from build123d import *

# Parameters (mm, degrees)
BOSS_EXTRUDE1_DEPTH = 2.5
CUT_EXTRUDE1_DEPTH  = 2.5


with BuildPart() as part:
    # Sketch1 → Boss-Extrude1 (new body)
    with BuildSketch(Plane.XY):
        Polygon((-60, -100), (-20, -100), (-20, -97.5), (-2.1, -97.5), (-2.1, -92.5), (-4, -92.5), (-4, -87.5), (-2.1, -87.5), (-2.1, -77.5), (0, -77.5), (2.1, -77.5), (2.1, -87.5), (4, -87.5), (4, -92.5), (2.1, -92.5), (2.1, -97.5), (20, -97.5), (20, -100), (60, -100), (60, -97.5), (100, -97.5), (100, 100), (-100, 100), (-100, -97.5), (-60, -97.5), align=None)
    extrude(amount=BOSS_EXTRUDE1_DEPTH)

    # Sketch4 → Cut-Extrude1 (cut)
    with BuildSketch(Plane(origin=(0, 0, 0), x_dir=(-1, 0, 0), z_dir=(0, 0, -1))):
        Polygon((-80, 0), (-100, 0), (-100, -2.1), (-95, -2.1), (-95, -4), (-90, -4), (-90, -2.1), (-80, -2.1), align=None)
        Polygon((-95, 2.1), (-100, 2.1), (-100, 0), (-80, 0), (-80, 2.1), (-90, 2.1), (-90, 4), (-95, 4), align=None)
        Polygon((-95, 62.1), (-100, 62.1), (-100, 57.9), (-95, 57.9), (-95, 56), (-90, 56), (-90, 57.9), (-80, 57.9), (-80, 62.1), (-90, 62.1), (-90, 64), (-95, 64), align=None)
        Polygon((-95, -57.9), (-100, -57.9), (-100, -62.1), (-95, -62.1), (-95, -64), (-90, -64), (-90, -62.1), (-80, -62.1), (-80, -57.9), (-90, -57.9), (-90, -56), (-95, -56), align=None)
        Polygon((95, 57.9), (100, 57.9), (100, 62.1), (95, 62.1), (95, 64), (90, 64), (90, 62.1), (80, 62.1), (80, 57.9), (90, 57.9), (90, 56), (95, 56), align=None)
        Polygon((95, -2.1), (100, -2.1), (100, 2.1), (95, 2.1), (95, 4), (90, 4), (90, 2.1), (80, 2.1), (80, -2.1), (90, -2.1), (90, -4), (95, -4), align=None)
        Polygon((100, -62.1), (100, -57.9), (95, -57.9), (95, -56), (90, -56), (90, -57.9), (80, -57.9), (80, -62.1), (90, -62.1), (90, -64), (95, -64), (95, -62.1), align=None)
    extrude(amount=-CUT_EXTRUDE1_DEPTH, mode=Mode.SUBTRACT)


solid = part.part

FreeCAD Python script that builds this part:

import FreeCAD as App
import Part
import Sketcher

V = App.Vector
Q = App.Units.Quantity

doc = App.newDocument("Part")
body = doc.addObject("PartDesign::Body", "Body")

# Sketch on XY plane
sketch1 = doc.addObject("Sketcher::SketchObject", "Sketch")
body.addObject(sketch1)
sketch1.AttachmentSupport = (doc.XY_Plane, [""])
sketch1.MapMode = "FlatFace"
sketch1.addGeometry([
    Part.LineSegment(V(-60, -100, 0), V(-20, -100, 0)),  # 0
    Part.LineSegment(V(-20, -100, 0), V(-20, -97.5, 0)),  # 1
    Part.LineSegment(V(-20, -97.5, 0), V(-2.1, -97.5, 0)),  # 2
    Part.LineSegment(V(-2.1, -97.5, 0), V(-2.1, -92.5, 0)),  # 3
    Part.LineSegment(V(-2.1, -92.5, 0), V(-4, -92.5, 0)),  # 4
    Part.LineSegment(V(-4, -92.5, 0), V(-4, -87.5, 0)),  # 5
    Part.LineSegment(V(-4, -87.5, 0), V(-2.1, -87.5, 0)),  # 6
    Part.LineSegment(V(-2.1, -87.5, 0), V(-2.1, -77.5, 0)),  # 7
    Part.LineSegment(V(-2.1, -77.5, 0), V(2.1, -77.5, 0)),  # 8
    Part.LineSegment(V(2.1, -77.5, 0), V(2.1, -87.5, 0)),  # 9
    Part.LineSegment(V(2.1, -87.5, 0), V(4, -87.5, 0)),  # 10
    Part.LineSegment(V(4, -87.5, 0), V(4, -92.5, 0)),  # 11
    Part.LineSegment(V(4, -92.5, 0), V(2.1, -92.5, 0)),  # 12
    Part.LineSegment(V(2.1, -92.5, 0), V(2.1, -97.5, 0)),  # 13
    Part.LineSegment(V(2.1, -97.5, 0), V(20, -97.5, 0)),  # 14
    Part.LineSegment(V(20, -97.5, 0), V(20, -100, 0)),  # 15
    Part.LineSegment(V(20, -100, 0), V(60, -100, 0)),  # 16
    Part.LineSegment(V(60, -100, 0), V(60, -97.5, 0)),  # 17
    Part.LineSegment(V(60, -97.5, 0), V(100, -97.5, 0)),  # 18
    Part.LineSegment(V(100, -97.5, 0), V(100, 100, 0)),  # 19
    Part.LineSegment(V(100, 100, 0), V(-100, 100, 0)),  # 20
    Part.LineSegment(V(-100, 100, 0), V(-100, -97.5, 0)),  # 21
    Part.LineSegment(V(-100, -97.5, 0), V(-60, -97.5, 0)),  # 22
    Part.LineSegment(V(-60, -97.5, 0), V(-60, -100, 0)),  # 23
], False)
sketch1.addConstraint([
    Sketcher.Constraint("Coincident", 0, 2, 1, 1),
    Sketcher.Constraint("Coincident", 1, 2, 2, 1),
    Sketcher.Constraint("Coincident", 2, 2, 3, 1),
    Sketcher.Constraint("Coincident", 3, 2, 4, 1),
    Sketcher.Constraint("Coincident", 4, 2, 5, 1),
    Sketcher.Constraint("Coincident", 5, 2, 6, 1),
    Sketcher.Constraint("Coincident", 6, 2, 7, 1),
    Sketcher.Constraint("Coincident", 7, 2, 8, 1),
    Sketcher.Constraint("Coincident", 8, 2, 9, 1),
    Sketcher.Constraint("Coincident", 9, 2, 10, 1),
    Sketcher.Constraint("Coincident", 10, 2, 11, 1),
    Sketcher.Constraint("Coincident", 11, 2, 12, 1),
    Sketcher.Constraint("Coincident", 12, 2, 13, 1),
    Sketcher.Constraint("Coincident", 13, 2, 14, 1),
    Sketcher.Constraint("Coincident", 14, 2, 15, 1),
    Sketcher.Constraint("Coincident", 15, 2, 16, 1),
    Sketcher.Constraint("Coincident", 16, 2, 17, 1),
    Sketcher.Constraint("Coincident", 17, 2, 18, 1),
    Sketcher.Constraint("Coincident", 18, 2, 19, 1),
    Sketcher.Constraint("Coincident", 19, 2, 20, 1),
    Sketcher.Constraint("Coincident", 20, 2, 21, 1),
    Sketcher.Constraint("Coincident", 21, 2, 22, 1),
    Sketcher.Constraint("Coincident", 22, 2, 23, 1),
    Sketcher.Constraint("Coincident", 23, 2, 0, 1),
    Sketcher.Constraint("Horizontal", 0),
    Sketcher.Constraint("Vertical", 1),
    Sketcher.Constraint("Horizontal", 2),
    Sketcher.Constraint("Vertical", 3),
    Sketcher.Constraint("Horizontal", 4),
    Sketcher.Constraint("Vertical", 5),
    Sketcher.Constraint("Horizontal", 6),
    Sketcher.Constraint("Vertical", 7),
    Sketcher.Constraint("Horizontal", 8),
    Sketcher.Constraint("Vertical", 9),
    Sketcher.Constraint("Horizontal", 10),
    Sketcher.Constraint("Vertical", 11),
    Sketcher.Constraint("Horizontal", 12),
    Sketcher.Constraint("Vertical", 13),
    Sketcher.Constraint("Horizontal", 14),
    Sketcher.Constraint("Vertical", 15),
    Sketcher.Constraint("Horizontal", 16),
    Sketcher.Constraint("Vertical", 17),
    Sketcher.Constraint("Horizontal", 18),
    Sketcher.Constraint("Vertical", 19),
    Sketcher.Constraint("Horizontal", 20),
    Sketcher.Constraint("Vertical", 21),
    Sketcher.Constraint("Horizontal", 22),
    Sketcher.Constraint("Vertical", 23),
    Sketcher.Constraint("Symmetric", 6, 2, 9, 2, -2),
    Sketcher.Constraint("Symmetric", 4, 2, 11, 2, -2),
    Sketcher.Constraint("Symmetric", 2, 2, 13, 2, -2),
    Sketcher.Constraint("Symmetric", 0, 2, 15, 2, -2),
    Sketcher.Constraint("Symmetric", 18, 2, 21, 2, -2),
    Sketcher.Constraint("Horizontal", 14, 2, 17, 2),
    Sketcher.Constraint("Vertical", 3, 2, 6, 2),
    Sketcher.Constraint("Equal", 0, 16),
    Sketcher.Constraint("Equal", 16, 18),
    Sketcher.Constraint("Equal", 3, 5),
    Sketcher.Constraint("DistanceX", 0, 1, 0, 2, Q("40 mm")),
    Sketcher.Constraint("DistanceX", 20, 2, 20, 1, Q("200 mm")),
    Sketcher.Constraint("DistanceY", 3, 1, 3, 2, Q("5 mm")),
    Sketcher.Constraint("DistanceY", 7, 1, 7, 2, Q("10 mm")),
    Sketcher.Constraint("DistanceX", 2, 1, 2, 2, Q("17.9 mm")),
    Sketcher.Constraint("DistanceX", 4, 2, 4, 1, Q("1.9 mm")),
    Sketcher.Constraint("DistanceY", 1, 1, 1, 2, Q("2.5 mm")),
    Sketcher.Constraint("DistanceY", 19, 1, 19, 2, Q("197.5 mm")),
    Sketcher.Constraint("DistanceY", 0, 2, -1, 1, Q("100 mm")),
])
pad1 = doc.addObject("PartDesign::Pad", "Pad")
body.addObject(pad1)
pad1.Profile = sketch1
pad1.Length = 2.5

# Sketch on XY plane
sketch2 = doc.addObject("Sketcher::SketchObject", "Sketch001")
body.addObject(sketch2)
sketch2.AttachmentSupport = (doc.XY_Plane, [""])
sketch2.MapMode = "FlatFace"
sketch2.addGeometry([
    Part.LineSegment(V(100, -2.1, 0), V(95, -2.1, 0)),  # 0
    Part.LineSegment(V(95, -2.1, 0), V(95, -4, 0)),  # 1
    Part.LineSegment(V(95, -4, 0), V(90, -4, 0)),  # 2
    Part.LineSegment(V(90, -4, 0), V(90, -2.1, 0)),  # 3
    Part.LineSegment(V(90, -2.1, 0), V(80, -2.1, 0)),  # 4
    Part.LineSegment(V(80, -2.1, 0), V(80, 2.1, 0)),  # 5
    Part.LineSegment(V(80, 2.1, 0), V(90, 2.1, 0)),  # 6
    Part.LineSegment(V(90, 2.1, 0), V(90, 4, 0)),  # 7
    Part.LineSegment(V(90, 4, 0), V(95, 4, 0)),  # 8
    Part.LineSegment(V(95, 4, 0), V(95, 2.1, 0)),  # 9
    Part.LineSegment(V(95, 2.1, 0), V(100, 2.1, 0)),  # 10
    Part.LineSegment(V(100, 2.1, 0), V(100, -2.1, 0)),  # 11
    Part.LineSegment(V(95, 62.1, 0), V(100, 62.1, 0)),  # 12
    Part.LineSegment(V(100, 62.1, 0), V(100, 57.9, 0)),  # 13
    Part.LineSegment(V(100, 57.9, 0), V(95, 57.9, 0)),  # 14
    Part.LineSegment(V(95, 57.9, 0), V(95, 56, 0)),  # 15
    Part.LineSegment(V(95, 56, 0), V(90, 56, 0)),  # 16
    Part.LineSegment(V(90, 56, 0), V(90, 57.9, 0)),  # 17
    Part.LineSegment(V(90, 57.9, 0), V(80, 57.9, 0)),  # 18
    Part.LineSegment(V(80, 57.9, 0), V(80, 62.1, 0)),  # 19
    Part.LineSegment(V(80, 62.1, 0), V(90, 62.1, 0)),  # 20
    Part.LineSegment(V(90, 62.1, 0), V(90, 64, 0)),  # 21
    Part.LineSegment(V(90, 64, 0), V(95, 64, 0)),  # 22
    Part.LineSegment(V(95, 64, 0), V(95, 62.1, 0)),  # 23
    Part.LineSegment(V(95, -57.9, 0), V(100, -57.9, 0)),  # 24
    Part.LineSegment(V(100, -57.9, 0), V(100, -62.1, 0)),  # 25
    Part.LineSegment(V(100, -62.1, 0), V(95, -62.1, 0)),  # 26
    Part.LineSegment(V(95, -62.1, 0), V(95, -64, 0)),  # 27
    Part.LineSegment(V(95, -64, 0), V(90, -64, 0)),  # 28
    Part.LineSegment(V(90, -64, 0), V(90, -62.1, 0)),  # 29
    Part.LineSegment(V(90, -62.1, 0), V(80, -62.1, 0)),  # 30
    Part.LineSegment(V(80, -62.1, 0), V(80, -57.9, 0)),  # 31
    Part.LineSegment(V(80, -57.9, 0), V(90, -57.9, 0)),  # 32
    Part.LineSegment(V(90, -57.9, 0), V(90, -56, 0)),  # 33
    Part.LineSegment(V(90, -56, 0), V(95, -56, 0)),  # 34
    Part.LineSegment(V(95, -56, 0), V(95, -57.9, 0)),  # 35
    Part.LineSegment(V(-95, 57.9, 0), V(-100, 57.9, 0)),  # 36
    Part.LineSegment(V(-100, 57.9, 0), V(-100, 62.1, 0)),  # 37
    Part.LineSegment(V(-100, 62.1, 0), V(-95, 62.1, 0)),  # 38
    Part.LineSegment(V(-95, 62.1, 0), V(-95, 64, 0)),  # 39
    Part.LineSegment(V(-95, 64, 0), V(-90, 64, 0)),  # 40
    Part.LineSegment(V(-90, 64, 0), V(-90, 62.1, 0)),  # 41
    Part.LineSegment(V(-90, 62.1, 0), V(-80, 62.1, 0)),  # 42
    Part.LineSegment(V(-80, 62.1, 0), V(-80, 57.9, 0)),  # 43
    Part.LineSegment(V(-80, 57.9, 0), V(-90, 57.9, 0)),  # 44
    Part.LineSegment(V(-90, 57.9, 0), V(-90, 56, 0)),  # 45
    Part.LineSegment(V(-90, 56, 0), V(-95, 56, 0)),  # 46
    Part.LineSegment(V(-95, 56, 0), V(-95, 57.9, 0)),  # 47
    Part.LineSegment(V(-95, -2.1, 0), V(-100, -2.1, 0)),  # 48
    Part.LineSegment(V(-100, -2.1, 0), V(-100, 2.1, 0)),  # 49
    Part.LineSegment(V(-100, 2.1, 0), V(-95, 2.1, 0)),  # 50
    Part.LineSegment(V(-95, 2.1, 0), V(-95, 4, 0)),  # 51
    Part.LineSegment(V(-95, 4, 0), V(-90, 4, 0)),  # 52
    Part.LineSegment(V(-90, 4, 0), V(-90, 2.1, 0)),  # 53
    Part.LineSegment(V(-90, 2.1, 0), V(-80, 2.1, 0)),  # 54
    Part.LineSegment(V(-80, 2.1, 0), V(-80, -2.1, 0)),  # 55
    Part.LineSegment(V(-80, -2.1, 0), V(-90, -2.1, 0)),  # 56
    Part.LineSegment(V(-90, -2.1, 0), V(-90, -4, 0)),  # 57
    Part.LineSegment(V(-90, -4, 0), V(-95, -4, 0)),  # 58
    Part.LineSegment(V(-95, -4, 0), V(-95, -2.1, 0)),  # 59
    Part.LineSegment(V(-100, -62.1, 0), V(-100, -57.9, 0)),  # 60
    Part.LineSegment(V(-100, -57.9, 0), V(-95, -57.9, 0)),  # 61
    Part.LineSegment(V(-95, -57.9, 0), V(-95, -56, 0)),  # 62
    Part.LineSegment(V(-95, -56, 0), V(-90, -56, 0)),  # 63
    Part.LineSegment(V(-90, -56, 0), V(-90, -57.9, 0)),  # 64
    Part.LineSegment(V(-90, -57.9, 0), V(-80, -57.9, 0)),  # 65
    Part.LineSegment(V(-80, -57.9, 0), V(-80, -62.1, 0)),  # 66
    Part.LineSegment(V(-80, -62.1, 0), V(-90, -62.1, 0)),  # 67
    Part.LineSegment(V(-90, -62.1, 0), V(-90, -64, 0)),  # 68
    Part.LineSegment(V(-90, -64, 0), V(-95, -64, 0)),  # 69
    Part.LineSegment(V(-95, -64, 0), V(-95, -62.1, 0)),  # 70
    Part.LineSegment(V(-95, -62.1, 0), V(-100, -62.1, 0)),  # 71
], False)
sketch2.addConstraint([
    Sketcher.Constraint("Coincident", 0, 2, 1, 1),
    Sketcher.Constraint("Coincident", 1, 2, 2, 1),
    Sketcher.Constraint("Coincident", 2, 2, 3, 1),
    Sketcher.Constraint("Coincident", 3, 2, 4, 1),
    Sketcher.Constraint("Coincident", 4, 2, 5, 1),
    Sketcher.Constraint("Coincident", 5, 2, 6, 1),
    Sketcher.Constraint("Coincident", 6, 2, 7, 1),
    Sketcher.Constraint("Coincident", 7, 2, 8, 1),
    Sketcher.Constraint("Coincident", 8, 2, 9, 1),
    Sketcher.Constraint("Coincident", 9, 2, 10, 1),
    Sketcher.Constraint("Coincident", 10, 2, 11, 1),
    Sketcher.Constraint("Coincident", 11, 2, 0, 1),
    Sketcher.Constraint("Coincident", 12, 2, 13, 1),
    Sketcher.Constraint("Coincident", 13, 2, 14, 1),
    Sketcher.Constraint("Coincident", 14, 2, 15, 1),
    Sketcher.Constraint("Coincident", 15, 2, 16, 1),
    Sketcher.Constraint("Coincident", 16, 2, 17, 1),
    Sketcher.Constraint("Coincident", 17, 2, 18, 1),
    Sketcher.Constraint("Coincident", 18, 2, 19, 1),
    Sketcher.Constraint("Coincident", 19, 2, 20, 1),
    Sketcher.Constraint("Coincident", 20, 2, 21, 1),
    Sketcher.Constraint("Coincident", 21, 2, 22, 1),
    Sketcher.Constraint("Coincident", 22, 2, 23, 1),
    Sketcher.Constraint("Coincident", 23, 2, 12, 1),
    Sketcher.Constraint("Coincident", 24, 2, 25, 1),
    Sketcher.Constraint("Coincident", 25, 2, 26, 1),
    Sketcher.Constraint("Coincident", 26, 2, 27, 1),
    Sketcher.Constraint("Coincident", 27, 2, 28, 1),
    Sketcher.Constraint("Coincident", 28, 2, 29, 1),
    Sketcher.Constraint("Coincident", 29, 2, 30, 1),
    Sketcher.Constraint("Coincident", 30, 2, 31, 1),
    Sketcher.Constraint("Coincident", 31, 2, 32, 1),
    Sketcher.Constraint("Coincident", 32, 2, 33, 1),
    Sketcher.Constraint("Coincident", 33, 2, 34, 1),
    Sketcher.Constraint("Coincident", 34, 2, 35, 1),
    Sketcher.Constraint("Coincident", 35, 2, 24, 1),
    Sketcher.Constraint("Coincident", 36, 2, 37, 1),
    Sketcher.Constraint("Coincident", 37, 2, 38, 1),
    Sketcher.Constraint("Coincident", 38, 2, 39, 1),
    Sketcher.Constraint("Coincident", 39, 2, 40, 1),
    Sketcher.Constraint("Coincident", 40, 2, 41, 1),
    Sketcher.Constraint("Coincident", 41, 2, 42, 1),
    Sketcher.Constraint("Coincident", 42, 2, 43, 1),
    Sketcher.Constraint("Coincident", 43, 2, 44, 1),
    Sketcher.Constraint("Coincident", 44, 2, 45, 1),
    Sketcher.Constraint("Coincident", 45, 2, 46, 1),
    Sketcher.Constraint("Coincident", 46, 2, 47, 1),
    Sketcher.Constraint("Coincident", 47, 2, 36, 1),
    Sketcher.Constraint("Coincident", 48, 2, 49, 1),
    Sketcher.Constraint("Coincident", 49, 2, 50, 1),
    Sketcher.Constraint("Coincident", 50, 2, 51, 1),
    Sketcher.Constraint("Coincident", 51, 2, 52, 1),
    Sketcher.Constraint("Coincident", 52, 2, 53, 1),
    Sketcher.Constraint("Coincident", 53, 2, 54, 1),
    Sketcher.Constraint("Coincident", 54, 2, 55, 1),
    Sketcher.Constraint("Coincident", 55, 2, 56, 1),
    Sketcher.Constraint("Coincident", 56, 2, 57, 1),
    Sketcher.Constraint("Coincident", 57, 2, 58, 1),
    Sketcher.Constraint("Coincident", 58, 2, 59, 1),
    Sketcher.Constraint("Coincident", 59, 2, 48, 1),
    Sketcher.Constraint("Coincident", 60, 2, 61, 1),
    Sketcher.Constraint("Coincident", 61, 2, 62, 1),
    Sketcher.Constraint("Coincident", 62, 2, 63, 1),
    Sketcher.Constraint("Coincident", 63, 2, 64, 1),
    Sketcher.Constraint("Coincident", 64, 2, 65, 1),
    Sketcher.Constraint("Coincident", 65, 2, 66, 1),
    Sketcher.Constraint("Coincident", 66, 2, 67, 1),
    Sketcher.Constraint("Coincident", 67, 2, 68, 1),
    Sketcher.Constraint("Coincident", 68, 2, 69, 1),
    Sketcher.Constraint("Coincident", 69, 2, 70, 1),
    Sketcher.Constraint("Coincident", 70, 2, 71, 1),
    Sketcher.Constraint("Coincident", 71, 2, 60, 1),
    Sketcher.Constraint("Horizontal", 0),
    Sketcher.Constraint("Vertical", 1),
    Sketcher.Constraint("Horizontal", 2),
    Sketcher.Constraint("Vertical", 3),
    Sketcher.Constraint("Horizontal", 4),
    Sketcher.Constraint("Vertical", 5),
    Sketcher.Constraint("Horizontal", 6),
    Sketcher.Constraint("Vertical", 7),
    Sketcher.Constraint("Horizontal", 8),
    Sketcher.Constraint("Vertical", 9),
    Sketcher.Constraint("Horizontal", 10),
    Sketcher.Constraint("Vertical", 11),
    Sketcher.Constraint("Horizontal", 12),
    Sketcher.Constraint("Vertical", 13),
    Sketcher.Constraint("Horizontal", 14),
    Sketcher.Constraint("Vertical", 15),
    Sketcher.Constraint("Horizontal", 16),
    Sketcher.Constraint("Vertical", 17),
    Sketcher.Constraint("Horizontal", 18),
    Sketcher.Constraint("Vertical", 19),
    Sketcher.Constraint("Horizontal", 20),
    Sketcher.Constraint("Vertical", 21),
    Sketcher.Constraint("Horizontal", 22),
    Sketcher.Constraint("Vertical", 23),
    Sketcher.Constraint("Horizontal", 24),
    Sketcher.Constraint("Vertical", 25),
    Sketcher.Constraint("Horizontal", 26),
    Sketcher.Constraint("Vertical", 27),
    Sketcher.Constraint("Horizontal", 28),
    Sketcher.Constraint("Vertical", 29),
    Sketcher.Constraint("Horizontal", 30),
    Sketcher.Constraint("Vertical", 31),
    Sketcher.Constraint("Horizontal", 32),
    Sketcher.Constraint("Vertical", 33),
    Sketcher.Constraint("Horizontal", 34),
    Sketcher.Constraint("Vertical", 35),
    Sketcher.Constraint("Horizontal", 36),
    Sketcher.Constraint("Vertical", 37),
    Sketcher.Constraint("Horizontal", 38),
    Sketcher.Constraint("Vertical", 39),
    Sketcher.Constraint("Horizontal", 40),
    Sketcher.Constraint("Vertical", 41),
    Sketcher.Constraint("Horizontal", 42),
    Sketcher.Constraint("Vertical", 43),
    Sketcher.Constraint("Horizontal", 44),
    Sketcher.Constraint("Vertical", 45),
    Sketcher.Constraint("Horizontal", 46),
    Sketcher.Constraint("Vertical", 47),
    Sketcher.Constraint("Horizontal", 48),
    Sketcher.Constraint("Vertical", 49),
    Sketcher.Constraint("Horizontal", 50),
    Sketcher.Constraint("Vertical", 51),
    Sketcher.Constraint("Horizontal", 52),
    Sketcher.Constraint("Vertical", 53),
    Sketcher.Constraint("Horizontal", 54),
    Sketcher.Constraint("Vertical", 55),
    Sketcher.Constraint("Horizontal", 56),
    Sketcher.Constraint("Vertical", 57),
    Sketcher.Constraint("Horizontal", 58),
    Sketcher.Constraint("Vertical", 59),
    Sketcher.Constraint("Vertical", 60),
    Sketcher.Constraint("Horizontal", 61),
    Sketcher.Constraint("Vertical", 62),
    Sketcher.Constraint("Horizontal", 63),
    Sketcher.Constraint("Vertical", 64),
    Sketcher.Constraint("Horizontal", 65),
    Sketcher.Constraint("Vertical", 66),
    Sketcher.Constraint("Horizontal", 67),
    Sketcher.Constraint("Vertical", 68),
    Sketcher.Constraint("Horizontal", 69),
    Sketcher.Constraint("Vertical", 70),
    Sketcher.Constraint("Horizontal", 71),
    Sketcher.Constraint("Symmetric", 24, 2, 36, 2, -1, 1),
    Sketcher.Constraint("Symmetric", 26, 2, 38, 2, -1, 1),
    Sketcher.Constraint("Symmetric", 28, 2, 40, 2, -1, 1),
    Sketcher.Constraint("Symmetric", 30, 2, 42, 2, -1, 1),
    Sketcher.Constraint("Symmetric", 32, 2, 44, 2, -1, 1),
    Sketcher.Constraint("Symmetric", 34, 2, 46, 2, -1, 1),
    Sketcher.Constraint("Symmetric", 10, 2, 48, 2, -1, 1),
    Sketcher.Constraint("Symmetric", 0, 2, 50, 2, -1, 1),
    Sketcher.Constraint("Symmetric", 2, 2, 52, 2, -1, 1),
    Sketcher.Constraint("Symmetric", 4, 2, 54, 2, -1, 1),
    Sketcher.Constraint("Symmetric", 6, 2, 56, 2, -1, 1),
    Sketcher.Constraint("Symmetric", 8, 2, 58, 2, -1, 1),
    Sketcher.Constraint("Symmetric", 13, 2, 60, 2, -1, 1),
    Sketcher.Constraint("Symmetric", 15, 2, 62, 2, -1, 1),
    Sketcher.Constraint("Symmetric", 17, 2, 64, 2, -1, 1),
    Sketcher.Constraint("Symmetric", 19, 2, 66, 2, -1, 1),
    Sketcher.Constraint("Symmetric", 21, 2, 68, 2, -1, 1),
    Sketcher.Constraint("Symmetric", 23, 2, 70, 2, -1, 1),
    Sketcher.Constraint("Symmetric", 13, 2, 36, 2, -2),
    Sketcher.Constraint("Symmetric", 23, 2, 38, 2, -2),
    Sketcher.Constraint("Symmetric", 21, 2, 40, 2, -2),
    Sketcher.Constraint("Symmetric", 19, 2, 42, 2, -2),
    Sketcher.Constraint("Symmetric", 17, 2, 44, 2, -2),
    Sketcher.Constraint("Symmetric", 15, 2, 46, 2, -2),
    Sketcher.Constraint("Symmetric", 9, 2, 50, 2, -2),
    Sketcher.Constraint("Symmetric", 7, 2, 52, 2, -2),
    Sketcher.Constraint("Horizontal", 0, 2, 3, 2),
    Sketcher.Constraint("Horizontal", 6, 2, 9, 2),
    Sketcher.Constraint("Horizontal", 14, 2, 17, 2),
    Sketcher.Constraint("Horizontal", 12, 2, 19, 2),
    Sketcher.Constraint("Vertical", 11, 2, 12, 2),
    Sketcher.Constraint("Vertical", 9, 2, 14, 2),
    Sketcher.Constraint("Vertical", 7, 2, 16, 2),
    Sketcher.Constraint("Vertical", 5, 2, 18, 2),
    Sketcher.Constraint("Vertical", 17, 2, 20, 2),
    Sketcher.Constraint("Vertical", 15, 2, 22, 2),
    Sketcher.Constraint("Equal", 0, 2),
    Sketcher.Constraint("Equal", 11, 13),
    Sketcher.Constraint("Equal", 9, 15),
    Sketcher.Constraint("Equal", 17, 21),
    Sketcher.Constraint("DistanceX", 0, 2, 0, 1, Q("5 mm")),
    Sketcher.Constraint("DistanceX", 4, 2, 4, 1, Q("10 mm")),
    Sketcher.Constraint("DistanceY", 1, 2, 1, 1, Q("1.9 mm")),
    Sketcher.Constraint("DistanceY", 5, 1, 5, 2, Q("4.2 mm")),
    Sketcher.Constraint("DistanceX", -1, 1, 0, 2, Q("95 mm")),
    Sketcher.Constraint("DistanceY", -1, 1, 15, 2, Q("56 mm")),
])
pocket1 = doc.addObject("PartDesign::Pocket", "Pocket")
body.addObject(pocket1)
pocket1.Profile = sketch2
pocket1.Length = 2.5
pocket1.Reversed = True

doc.recompute()
